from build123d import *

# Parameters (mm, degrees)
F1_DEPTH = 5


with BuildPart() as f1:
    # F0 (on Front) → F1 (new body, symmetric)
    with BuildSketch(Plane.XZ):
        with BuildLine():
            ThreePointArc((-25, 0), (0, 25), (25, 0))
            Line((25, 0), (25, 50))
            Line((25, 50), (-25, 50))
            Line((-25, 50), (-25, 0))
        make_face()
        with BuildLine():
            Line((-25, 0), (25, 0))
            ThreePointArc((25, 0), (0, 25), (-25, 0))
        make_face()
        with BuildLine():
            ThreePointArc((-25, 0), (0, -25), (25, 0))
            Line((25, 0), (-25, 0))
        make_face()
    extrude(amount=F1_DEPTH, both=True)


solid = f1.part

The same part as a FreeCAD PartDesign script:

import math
import FreeCAD as App
import Part
import Sketcher
from FreeCAD import Vector

doc = App.newDocument("Part")
params = doc.addObject("Spreadsheet::Sheet", "Params")
for row, (alias, value) in enumerate([
    ("sketch1_radius", "25 mm"),
    ("pad1_length", "10 mm"),
], start=1):
    params.set(f"A{row}", alias)
    params.set(f"B{row}", "=" + value)
    params.setAlias(f"B{row}", alias)

body = doc.addObject("PartDesign::Body", "Body")

sketch1 = body.newObject("Sketcher::SketchObject", "Sketch")
sketch1.AttachmentSupport = (doc.getObject("XZ_Plane"), [""])
sketch1.MapMode = "FlatFace"
sketch1.addGeometry(Part.LineSegment(Vector(25, 0, 0), Vector(25, 50, 0)), False)
sketch1.addGeometry(Part.LineSegment(Vector(25, 50, 0), Vector(-25, 50, 0)), False)
sketch1.addGeometry(Part.LineSegment(Vector(-25, 50, 0), Vector(-25, 0, 0)), False)
sketch1.addGeometry(Part.ArcOfCircle(Part.Circle(Vector(0, 0, 0), Vector(0, 0, 1), 25), math.radians(180), math.radians(360)), False)
sketch1.addConstraint(Sketcher.Constraint("Coincident", 0, 2, 1, 1))
sketch1.addConstraint(Sketcher.Constraint("Coincident", 1, 2, 2, 1))
sketch1.addConstraint(Sketcher.Constraint("Tangent", 2, 2, 3, 1))
sketch1.addConstraint(Sketcher.Constraint("Tangent", 3, 2, 0, 1))
sketch1.addConstraint(Sketcher.Constraint("Vertical", 0))
sketch1.addConstraint(Sketcher.Constraint("Horizontal", 1))
sketch1.addConstraint(Sketcher.Constraint("Vertical", 2))
sketch1.addConstraint(Sketcher.Constraint("Coincident", 3, 3, -1, 1))
sketch1.addConstraint(Sketcher.Constraint("Equal", 1, 0))
sketch1.addConstraint(Sketcher.Constraint("Radius", 3, 25.0))
sketch1.setExpression("Constraints[9]", "Params.sketch1_radius")
pad1 = body.newObject("PartDesign::Pad", "Pad")
pad1.Profile = sketch1
pad1.setExpression("Length", "Params.pad1_length")
pad1.Midplane = True

doc.recompute()
